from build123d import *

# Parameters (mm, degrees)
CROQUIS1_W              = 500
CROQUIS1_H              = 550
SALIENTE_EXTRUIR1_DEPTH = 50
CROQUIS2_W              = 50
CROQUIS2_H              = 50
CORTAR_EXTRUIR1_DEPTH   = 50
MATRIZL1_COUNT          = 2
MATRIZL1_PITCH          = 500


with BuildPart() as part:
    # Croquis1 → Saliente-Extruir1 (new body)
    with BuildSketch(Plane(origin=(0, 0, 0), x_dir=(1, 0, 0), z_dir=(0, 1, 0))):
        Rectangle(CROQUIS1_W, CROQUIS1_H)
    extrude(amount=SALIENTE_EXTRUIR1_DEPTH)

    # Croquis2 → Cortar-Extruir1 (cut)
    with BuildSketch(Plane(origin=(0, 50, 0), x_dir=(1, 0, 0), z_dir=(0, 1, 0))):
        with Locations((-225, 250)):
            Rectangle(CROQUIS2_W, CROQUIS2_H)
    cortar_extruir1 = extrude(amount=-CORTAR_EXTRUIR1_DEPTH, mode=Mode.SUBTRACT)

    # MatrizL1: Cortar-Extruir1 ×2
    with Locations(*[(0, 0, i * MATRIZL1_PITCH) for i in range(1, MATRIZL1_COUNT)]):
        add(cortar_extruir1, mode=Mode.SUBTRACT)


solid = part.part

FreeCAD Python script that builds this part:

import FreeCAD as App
import Part
import Sketcher
from FreeCAD import Vector


def add_polygon(sketch, points):
    """Adds a closed chain of lines whose ends are joined by coincident constraints."""
    first, n = sketch.GeometryCount, len(points)
    for a, b in zip(points, points[1:] + points[:1]):
        sketch.addGeometry(Part.LineSegment(App.Vector(*a, 0), App.Vector(*b, 0)), False)
    for i in range(n):
        sketch.addConstraint(Sketcher.Constraint("Coincident", first + i, 2, first + (i + 1) % n, 1))

doc = App.newDocument("Part")
body = doc.addObject("PartDesign::Body", "Body")

# Sketch on XZ plane
sketch1 = body.newObject("Sketcher::SketchObject", "Sketch")
sketch1.AttachmentSupport = (doc.getObject("XZ_Plane"), [""])
sketch1.MapMode = "FlatFace"
add_polygon(sketch1, [(-250, -275), (-250, 275), (250, 275), (250, -275)])  # lines 0-3
sketch1.addConstraint([
    Sketcher.Constraint("Vertical", 0),
    Sketcher.Constraint("Horizontal", 1),
    Sketcher.Constraint("Vertical", 2),
    Sketcher.Constraint("Horizontal", 3),
    Sketcher.Constraint("Symmetric", 0, 2, 2, 2, -1, 1),
    Sketcher.Constraint("DistanceX", 1, 1, 1, 2, 500.0),
    Sketcher.Constraint("DistanceY", 0, 1, 0, 2, 550.0),
])
pad1 = body.newObject("PartDesign::Pad", "Pad")
pad1.Profile = sketch1
pad1.Length = 50
pad1.Reversed = True

# Sketch on XZ plane
sketch2 = body.newObject("Sketcher::SketchObject", "Sketch001")
sketch2.AttachmentSupport = (doc.getObject("XZ_Plane"), [""])
sketch2.MapMode = "FlatFace"
sketch2.AttachmentOffset = App.Placement(Vector(0, 0, -50), App.Rotation())
add_polygon(sketch2, [(-250, -275), (-250, -225), (-200, -225), (-200, -275)])  # lines 0-3
sketch2.addConstraint([
    Sketcher.Constraint("Vertical", 0),
    Sketcher.Constraint("Horizontal", 1),
    Sketcher.Constraint("Vertical", 2),
    Sketcher.Constraint("Horizontal", 3),
    Sketcher.Constraint("Equal", 3, 0),
    Sketcher.Constraint("DistanceX", 1, 1, 1, 2, 50.0),
    Sketcher.Constraint("DistanceX", 0, 2, -1, 1, 250.0),
    Sketcher.Constraint("DistanceY", 0, 2, -1, 1, 225.0),
])
pocket1 = body.newObject("PartDesign::Pocket", "Pocket")
pocket1.Profile = sketch2
pocket1.Length = 50
pocket1.Reversed = True
doc.recompute()

linearpattern = body.newObject("PartDesign::LinearPattern", "LinearPattern")
linearpattern.Originals = [pocket1]
linearpattern.Direction = (doc.getObject("Z_Axis"), [""])
linearpattern.Mode = "offset"
linearpattern.Offset = 500
linearpattern.Occurrences = 2
body.Tip = linearpattern

doc.recompute()
